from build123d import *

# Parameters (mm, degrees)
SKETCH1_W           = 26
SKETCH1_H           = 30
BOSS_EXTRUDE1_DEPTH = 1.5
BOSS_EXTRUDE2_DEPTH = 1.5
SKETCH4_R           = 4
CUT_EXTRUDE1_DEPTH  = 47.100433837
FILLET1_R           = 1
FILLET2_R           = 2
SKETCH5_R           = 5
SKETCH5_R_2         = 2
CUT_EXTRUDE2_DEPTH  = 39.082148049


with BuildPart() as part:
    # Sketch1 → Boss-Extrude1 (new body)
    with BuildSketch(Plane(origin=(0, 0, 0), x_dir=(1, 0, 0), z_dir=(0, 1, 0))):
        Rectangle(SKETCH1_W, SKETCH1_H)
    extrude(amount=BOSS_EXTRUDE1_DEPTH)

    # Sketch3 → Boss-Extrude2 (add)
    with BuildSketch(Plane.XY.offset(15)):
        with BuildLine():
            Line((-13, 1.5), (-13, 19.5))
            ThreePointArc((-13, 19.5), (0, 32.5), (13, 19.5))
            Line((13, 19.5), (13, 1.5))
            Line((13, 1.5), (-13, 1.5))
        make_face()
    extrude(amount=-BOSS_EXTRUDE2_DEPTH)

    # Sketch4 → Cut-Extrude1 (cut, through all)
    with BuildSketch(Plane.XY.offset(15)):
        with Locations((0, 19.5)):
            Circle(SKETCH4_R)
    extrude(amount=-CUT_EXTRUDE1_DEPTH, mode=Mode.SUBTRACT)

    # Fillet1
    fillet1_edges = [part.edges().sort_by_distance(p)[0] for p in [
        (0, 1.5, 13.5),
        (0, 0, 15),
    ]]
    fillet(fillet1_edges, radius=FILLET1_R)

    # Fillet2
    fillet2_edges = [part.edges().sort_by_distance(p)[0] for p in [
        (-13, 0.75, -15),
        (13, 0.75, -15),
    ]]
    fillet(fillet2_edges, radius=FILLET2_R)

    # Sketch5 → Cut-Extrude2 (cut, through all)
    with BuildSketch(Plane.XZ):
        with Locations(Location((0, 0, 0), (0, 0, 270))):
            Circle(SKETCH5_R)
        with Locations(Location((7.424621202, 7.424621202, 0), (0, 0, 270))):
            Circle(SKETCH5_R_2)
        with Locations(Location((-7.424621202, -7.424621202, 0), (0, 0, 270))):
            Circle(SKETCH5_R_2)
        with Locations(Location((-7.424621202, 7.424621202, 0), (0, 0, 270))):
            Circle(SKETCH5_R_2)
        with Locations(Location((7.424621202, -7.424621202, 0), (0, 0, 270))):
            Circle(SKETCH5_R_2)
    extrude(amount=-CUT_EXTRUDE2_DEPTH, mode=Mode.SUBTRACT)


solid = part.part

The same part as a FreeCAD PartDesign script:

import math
import FreeCAD as App
import Part
import Sketcher

V = App.Vector
Q = App.Units.Quantity


def edges_at(feature, points):
    """Names of the edges that pass closest to the given points."""
    edges = feature.Shape.Edges
    near = lambda p: min(range(len(edges)), key=lambda i: edges[i].distToShape(Part.Vertex(*p))[0])
    return sorted({f"Edge{near(p) + 1}" for p in points})

doc = App.newDocument("Part")
params = doc.addObject("Spreadsheet::Sheet", "Params")
for row, (alias, value) in enumerate([
    ("sketch1_width", "26 mm"),
    ("sketch1_height", "30 mm"),
    ("pad1_length", "1.5 mm"),
    ("sketch2_radius", "13 mm"),
    ("sketch2_height", "18 mm"),
    ("pad2_length", "1.5 mm"),
    ("sketch3_diameter", "8 mm"),
    ("fillet_radius", "1 mm"),
    ("fillet2_radius", "2 mm"),
    ("sketch4_diameter", "10 mm"),
    ("sketch4_diameter2", "4 mm"),
], start=1):
    params.set(f"A{row}", alias)
    params.set(f"B{row}", "=" + value)
    params.setAlias(f"B{row}", alias)

body = doc.addObject("PartDesign::Body", "Body")

# Sketch on XZ plane
sketch1 = doc.addObject("Sketcher::SketchObject", "Sketch")
body.addObject(sketch1)
sketch1.AttachmentSupport = (doc.XZ_Plane, [""])
sketch1.MapMode = "FlatFace"
sketch1.addGeometry([
    Part.LineSegment(V(-13, -15, 0), V(-13, 15, 0)),
    Part.LineSegment(V(-13, 15, 0), V(13, 15, 0)),
    Part.LineSegment(V(13, 15, 0), V(13, -15, 0)),
    Part.LineSegment(V(13, -15, 0), V(-13, -15, 0)),
], False)
sketch1.addConstraint([
    Sketcher.Constraint("Coincident", 0, 2, 1, 1),
    Sketcher.Constraint("Coincident", 1, 2, 2, 1),
    Sketcher.Constraint("Coincident", 2, 2, 3, 1),
    Sketcher.Constraint("Coincident", 3, 2, 0, 1),
    Sketcher.Constraint("Vertical", 0),
    Sketcher.Constraint("Horizontal", 1),
    Sketcher.Constraint("Vertical", 2),
    Sketcher.Constraint("Horizontal", 3),
    Sketcher.Constraint("Symmetric", 0, 2, 2, 2, -1, 1),
    Sketcher.Constraint("DistanceX", 1, 1, 1, 2, Q("26 mm")),
    Sketcher.Constraint("DistanceY", 0, 1, 0, 2, Q("30 mm")),
])
sketch1.setExpression("Constraints[9]", "Params.sketch1_width")
sketch1.setExpression("Constraints[10]", "Params.sketch1_height")
pad1 = doc.addObject("PartDesign::Pad", "Pad")
body.addObject(pad1)
pad1.Profile = sketch1
pad1.setExpression("Length", "Params.pad1_length")
pad1.Reversed = True

# Sketch on XY plane
sketch2 = doc.addObject("Sketcher::SketchObject", "Sketch001")
body.addObject(sketch2)
sketch2.AttachmentSupport = (doc.XY_Plane, [""])
sketch2.MapMode = "FlatFace"
sketch2.AttachmentOffset = App.Placement(V(0, 0, 15), App.Rotation())
sketch2.addGeometry([
    Part.LineSegment(V(-13, 20, 0), V(-13, 2, 0)),
    Part.LineSegment(V(-13, 2, 0), V(13, 2, 0)),
    Part.LineSegment(V(13, 2, 0), V(13, 20, 0)),
    Part.ArcOfCircle(Part.Circle(V(0, 20, 0), V(0, 0, 1), 13), math.radians(0), math.radians(180)),
], False)
sketch2.addConstraint([
    Sketcher.Constraint("Coincident", 0, 2, 1, 1),
    Sketcher.Constraint("Coincident", 1, 2, 2, 1),
    Sketcher.Constraint("Tangent", 2, 2, 3, 1),
    Sketcher.Constraint("Tangent", 3, 2, 0, 1),
    Sketcher.Constraint("Vertical", 0),
    Sketcher.Constraint("Horizontal", 1),
    Sketcher.Constraint("Vertical", 2),
    Sketcher.Constraint("PointOnObject", 3, 3, -2),
    Sketcher.Constraint("Radius", 3, Q("13 mm")),
    Sketcher.Constraint("DistanceY", 0, 2, 0, 1, Q("18 mm")),
    Sketcher.Constraint("DistanceY", -1, 1, 3, 3, Q("19.5 mm")),
])
sketch2.setExpression("Constraints[8]", "Params.sketch2_radius")
sketch2.setExpression("Constraints[9]", "Params.sketch2_height")
pad2 = doc.addObject("PartDesign::Pad", "Pad001")
body.addObject(pad2)
pad2.Profile = sketch2
pad2.setExpression("Length", "Params.pad2_length")
pad2.Reversed = True

# Sketch on XY plane
sketch3 = doc.addObject("Sketcher::SketchObject", "Sketch002")
body.addObject(sketch3)
sketch3.AttachmentSupport = (doc.XY_Plane, [""])
sketch3.MapMode = "FlatFace"
sketch3.AttachmentOffset = App.Placement(V(0, 0, 15), App.Rotation())
sketch3.addGeometry(Part.Circle(V(0, 19.5, 0), V(0, 0, 1), 4), False)
sketch3.addConstraint([
    Sketcher.Constraint("PointOnObject", 0, 3, -2),
    Sketcher.Constraint("Diameter", 0, Q("8 mm")),
    Sketcher.Constraint("DistanceY", -1, 1, 0, 3, Q("19.5 mm")),
])
sketch3.setExpression("Constraints[1]", "Params.sketch3_diameter")
pocket1 = doc.addObject("PartDesign::Pocket", "Pocket")
body.addObject(pocket1)
pocket1.Profile = sketch3
pocket1.Type = "ThroughAll"
doc.recompute()

fillet = doc.addObject("PartDesign::Fillet", "Fillet")
body.addObject(fillet)
fillet.Base = (pocket1, edges_at(pocket1, [(0, 1.5, 13.5), (0, 0, 15)]))
fillet.setExpression("Radius", "Params.fillet_radius")
doc.recompute()

fillet2 = doc.addObject("PartDesign::Fillet", "Fillet001")
body.addObject(fillet2)
fillet2.Base = (fillet, edges_at(fillet, [(-13, 0.75, -15), (13, 0.75, -15)]))
fillet2.setExpression("Radius", "Params.fillet2_radius")

# Sketch on XZ plane
sketch4 = doc.addObject("Sketcher::SketchObject", "Sketch003")
body.addObject(sketch4)
sketch4.AttachmentSupport = (doc.XZ_Plane, [""])
sketch4.MapMode = "FlatFace"
sketch4.addGeometry([
    Part.Circle(V(0, 0, 0), V(0, 0, 1), 5),  # 0
    Part.Circle(V(7.4, 7.4, 0), V(0, 0, 1), 2),  # 1
    Part.Circle(V(-7.4, -7.4, 0), V(0, 0, 1), 2),  # 2
    Part.Circle(V(-7.4, 7.4, 0), V(0, 0, 1), 2),  # 3
    Part.Circle(V(7.4, -7.4, 0), V(0, 0, 1), 2),  # 4
], False)
sketch4.addConstraint([
    Sketcher.Constraint("Coincident", 0, 3, -1, 1),
    Sketcher.Constraint("Equal", 1, 2),
    Sketcher.Constraint("Equal", 2, 3),
    Sketcher.Constraint("Equal", 3, 4),
    Sketcher.Constraint("Symmetric", 1, 3, 2, 3, -1, 1),
    Sketcher.Constraint("Symmetric", 3, 3, 4, 3, -1, 1),
    Sketcher.Constraint("Symmetric", 1, 3, 3, 3, -2),
    Sketcher.Constraint("Diameter", 0, Q("10 mm")),
    Sketcher.Constraint("Diameter", 1, Q("4 mm")),
    Sketcher.Constraint("DistanceX", -1, 1, 1, 3, Q("7.424621 mm")),
    Sketcher.Constraint("DistanceY", -1, 1, 1, 3, Q("7.424621 mm")),
])
sketch4.setExpression("Constraints[7]", "Params.sketch4_diameter")
sketch4.setExpression("Constraints[8]", "Params.sketch4_diameter2")
pocket2 = doc.addObject("PartDesign::Pocket", "Pocket001")
body.addObject(pocket2)
pocket2.Profile = sketch4
pocket2.Type = "ThroughAll"

doc.recompute()
